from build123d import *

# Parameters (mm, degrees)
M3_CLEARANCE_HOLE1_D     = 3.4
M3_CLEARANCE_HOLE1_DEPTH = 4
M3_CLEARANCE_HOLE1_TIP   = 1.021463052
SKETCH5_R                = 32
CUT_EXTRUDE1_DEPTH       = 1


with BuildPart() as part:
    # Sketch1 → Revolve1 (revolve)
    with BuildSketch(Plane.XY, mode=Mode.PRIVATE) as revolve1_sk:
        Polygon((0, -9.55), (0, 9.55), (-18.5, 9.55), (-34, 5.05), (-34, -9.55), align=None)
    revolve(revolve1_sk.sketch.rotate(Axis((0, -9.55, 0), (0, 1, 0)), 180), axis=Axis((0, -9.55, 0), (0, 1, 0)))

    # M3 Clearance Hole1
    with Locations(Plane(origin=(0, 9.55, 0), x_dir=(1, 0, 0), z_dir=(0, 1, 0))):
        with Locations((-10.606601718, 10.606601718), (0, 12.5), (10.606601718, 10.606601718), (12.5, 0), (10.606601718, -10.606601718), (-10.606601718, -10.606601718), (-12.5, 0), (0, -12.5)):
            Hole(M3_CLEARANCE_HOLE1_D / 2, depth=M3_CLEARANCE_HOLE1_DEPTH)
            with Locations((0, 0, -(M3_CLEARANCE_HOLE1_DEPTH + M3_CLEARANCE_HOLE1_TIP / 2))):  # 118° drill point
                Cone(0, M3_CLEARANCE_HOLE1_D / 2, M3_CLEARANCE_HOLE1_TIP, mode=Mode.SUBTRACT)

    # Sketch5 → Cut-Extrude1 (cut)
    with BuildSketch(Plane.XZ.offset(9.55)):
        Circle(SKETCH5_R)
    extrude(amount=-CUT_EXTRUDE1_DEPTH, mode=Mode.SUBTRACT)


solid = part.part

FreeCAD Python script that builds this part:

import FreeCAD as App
import Part
import Sketcher
from FreeCAD import Vector


def add_polygon(sketch, points):
    """Adds a closed chain of lines whose ends are joined by coincident constraints."""
    first, n = sketch.GeometryCount, len(points)
    for a, b in zip(points, points[1:] + points[:1]):
        sketch.addGeometry(Part.LineSegment(App.Vector(*a, 0), App.Vector(*b, 0)), False)
    for i in range(n):
        sketch.addConstraint(Sketcher.Constraint("Coincident", first + i, 2, first + (i + 1) % n, 1))

doc = App.newDocument("Part")
body = doc.addObject("PartDesign::Body", "Body")

# Sketch on XY plane
sketch1 = body.newObject("Sketcher::SketchObject", "Sketch")
sketch1.AttachmentSupport = (doc.getObject("XY_Plane"), [""])
sketch1.MapMode = "FlatFace"
add_polygon(sketch1, [(0, -10), (0, 10), (-18, 10), (-34, 5), (-34, -10)])  # lines 0-4
sketch1.addConstraint([
    Sketcher.Constraint("Vertical", 0),
    Sketcher.Constraint("Horizontal", 1),
    Sketcher.Constraint("Vertical", 3),
    Sketcher.Constraint("Horizontal", 4),
    Sketcher.Constraint("Symmetric", 0, 2, 4, 2, -1, 1),
    Sketcher.Constraint("DistanceX", 4, 1, 4, 2, 34.0),
    Sketcher.Constraint("DistanceX", 1, 2, 1, 1, 18.5),
    Sketcher.Constraint("DistanceY", 0, 1, 0, 2, 19.1),
    Sketcher.Constraint("DistanceY", 3, 2, 3, 1, 14.6),
])
revolution = body.newObject("PartDesign::Revolution", "Revolution")
revolution.Profile = sketch1
revolution.ReferenceAxis = (sketch1, ["V_Axis"])
revolution.Angle = 360

# Sketch on XZ plane
sketch2 = body.newObject("Sketcher::SketchObject", "Sketch001")
sketch2.AttachmentSupport = (doc.getObject("XZ_Plane"), [""])
sketch2.MapMode = "FlatFace"
sketch2.AttachmentOffset = App.Placement(Vector(0, 0, -9.55), App.Rotation())
sketch2.addGeometry([
    Part.Circle(Vector(-10.6, -10.6, 0), Vector(0, 0, 1), 1.7),  # 0
    Part.Circle(Vector(0, -12.5, 0), Vector(0, 0, 1), 1.7),  # 1
    Part.Circle(Vector(10.6, -10.6, 0), Vector(0, 0, 1), 1.7),  # 2
    Part.Circle(Vector(12.5, 0, 0), Vector(0, 0, 1), 1.7),  # 3
    Part.Circle(Vector(10.6, 10.6, 0), Vector(0, 0, 1), 1.7),  # 4
    Part.Circle(Vector(-10.6, 10.6, 0), Vector(0, 0, 1), 1.7),  # 5
    Part.Circle(Vector(-12.5, 0, 0), Vector(0, 0, 1), 1.7),  # 6
    Part.Circle(Vector(0, 12.5, 0), Vector(0, 0, 1), 1.7),  # 7
], False)
sketch2.addConstraint([
    Sketcher.Constraint("Equal", 0, 1),
    Sketcher.Constraint("Equal", 1, 2),
    Sketcher.Constraint("Equal", 2, 3),
    Sketcher.Constraint("Equal", 3, 4),
    Sketcher.Constraint("Equal", 4, 5),
    Sketcher.Constraint("Equal", 5, 6),
    Sketcher.Constraint("Equal", 6, 7),
    Sketcher.Constraint("Symmetric", 0, 3, 4, 3, -1, 1),
    Sketcher.Constraint("Symmetric", 2, 3, 5, 3, -1, 1),
    Sketcher.Constraint("Symmetric", 3, 3, 6, 3, -1, 1),
    Sketcher.Constraint("Symmetric", 1, 3, 7, 3, -1, 1),
    Sketcher.Constraint("Symmetric", 0, 3, 2, 3, -2),
    Sketcher.Constraint("PointOnObject", 1, 3, -2),
    Sketcher.Constraint("PointOnObject", 3, 3, -1),
    Sketcher.Constraint("Diameter", 0, 3.4),
    Sketcher.Constraint("DistanceX", 6, 3, 3, 3, 25.0),
    Sketcher.Constraint("DistanceY", 1, 3, 7, 3, 25.0),
    Sketcher.Constraint("DistanceX", 0, 3, -1, 1, 10.606602),
    Sketcher.Constraint("DistanceY", 0, 3, -1, 1, 10.606602),
])
doc.recompute()
hole = body.newObject("PartDesign::Hole", "Hole")
hole.Profile = sketch2
hole.ThreadType = "None"
hole.Diameter = 3.4
hole.DepthType = "Dimension"
hole.Depth = 4
hole.DrillPoint = "Angled"
hole.DrillPointAngle = 118
hole.Reversed = True

# Sketch on XZ plane
sketch3 = body.newObject("Sketcher::SketchObject", "Sketch002")
sketch3.AttachmentSupport = (doc.getObject("XZ_Plane"), [""])
sketch3.MapMode = "FlatFace"
sketch3.AttachmentOffset = App.Placement(Vector(0, 0, 9.55), App.Rotation())
sketch3.addGeometry(Part.Circle(Vector(0, 0, 0), Vector(0, 0, 1), 32), False)
sketch3.addConstraint([
    Sketcher.Constraint("Coincident", 0, 3, -1, 1),
    Sketcher.Constraint("Diameter", 0, 64.0),
])
pocket1 = body.newObject("PartDesign::Pocket", "Pocket")
pocket1.Profile = sketch3
pocket1.Length = 1

doc.recompute()
